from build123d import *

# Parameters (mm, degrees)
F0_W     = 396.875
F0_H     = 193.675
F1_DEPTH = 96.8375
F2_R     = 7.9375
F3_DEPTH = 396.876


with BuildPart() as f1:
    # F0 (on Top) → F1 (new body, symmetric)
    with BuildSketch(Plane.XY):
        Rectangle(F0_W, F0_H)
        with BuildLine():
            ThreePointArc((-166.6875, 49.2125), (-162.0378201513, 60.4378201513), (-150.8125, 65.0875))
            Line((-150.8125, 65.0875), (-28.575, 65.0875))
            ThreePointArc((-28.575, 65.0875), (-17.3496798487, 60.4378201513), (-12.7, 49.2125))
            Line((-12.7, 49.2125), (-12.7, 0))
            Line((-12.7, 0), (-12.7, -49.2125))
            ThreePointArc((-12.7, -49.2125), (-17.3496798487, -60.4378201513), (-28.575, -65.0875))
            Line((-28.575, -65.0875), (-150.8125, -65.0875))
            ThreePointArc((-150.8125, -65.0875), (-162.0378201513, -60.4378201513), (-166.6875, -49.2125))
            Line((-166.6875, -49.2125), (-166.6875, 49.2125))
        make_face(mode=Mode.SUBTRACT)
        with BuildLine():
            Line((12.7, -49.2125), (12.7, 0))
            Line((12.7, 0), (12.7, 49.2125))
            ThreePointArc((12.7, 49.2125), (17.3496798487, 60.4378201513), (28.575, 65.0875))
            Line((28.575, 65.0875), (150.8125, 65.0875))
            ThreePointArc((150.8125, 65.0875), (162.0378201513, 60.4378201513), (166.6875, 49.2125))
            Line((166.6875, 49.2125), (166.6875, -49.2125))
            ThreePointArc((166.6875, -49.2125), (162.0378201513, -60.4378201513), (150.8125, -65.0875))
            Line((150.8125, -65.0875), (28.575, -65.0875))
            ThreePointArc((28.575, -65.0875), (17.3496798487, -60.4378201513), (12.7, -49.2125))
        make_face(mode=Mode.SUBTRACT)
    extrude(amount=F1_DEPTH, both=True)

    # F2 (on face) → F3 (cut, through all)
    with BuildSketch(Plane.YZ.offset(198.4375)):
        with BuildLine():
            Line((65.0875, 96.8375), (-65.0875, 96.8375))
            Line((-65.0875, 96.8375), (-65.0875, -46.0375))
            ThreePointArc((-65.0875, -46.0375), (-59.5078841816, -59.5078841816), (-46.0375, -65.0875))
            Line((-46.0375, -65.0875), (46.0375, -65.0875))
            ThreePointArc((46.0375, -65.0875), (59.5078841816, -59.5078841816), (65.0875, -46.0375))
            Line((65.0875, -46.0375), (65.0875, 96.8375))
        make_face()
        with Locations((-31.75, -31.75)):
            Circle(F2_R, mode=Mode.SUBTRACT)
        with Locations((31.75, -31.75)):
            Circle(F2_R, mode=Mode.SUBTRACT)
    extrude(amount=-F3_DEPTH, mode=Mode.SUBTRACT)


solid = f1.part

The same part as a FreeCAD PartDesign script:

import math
import FreeCAD as App
import Part
import Sketcher

V = App.Vector
Q = App.Units.Quantity


def add_polygon(sketch, points):
    """Adds a closed chain of lines whose ends are joined by coincident constraints."""
    first, n = sketch.GeometryCount, len(points)
    for a, b in zip(points, points[1:] + points[:1]):
        sketch.addGeometry(Part.LineSegment(App.Vector(*a, 0), App.Vector(*b, 0)), False)
    for i in range(n):
        sketch.addConstraint(Sketcher.Constraint("Coincident", first + i, 2, first + (i + 1) % n, 1))

doc = App.newDocument("Part")
params = doc.addObject("Spreadsheet::Sheet", "Params")
for row, (alias, value) in enumerate([
    ("sketch1_radius", "0.625 in"),
    ("sketch1_width", "15.625 in"),
    ("sketch1_width2", "4.8125 in"),
    ("sketch1_height", "7.625 in"),
    ("pad1_length", "7.625 in"),
    ("sketch2_radius", "0.75 in"),
    ("sketch2_diameter", "0.625 in"),
    ("sketch2_width", "5.125 in"),
    ("sketch2_height", "5.625 in"),
], start=1):
    params.set(f"A{row}", alias)
    params.set(f"B{row}", "=" + value)
    params.setAlias(f"B{row}", alias)

body = doc.addObject("PartDesign::Body", "Body")
body.AllowCompound = True

sketch1 = body.newObject("Sketcher::SketchObject", "Sketch")
sketch1.AttachmentSupport = (doc.getObject("XY_Plane"), [""])
sketch1.MapMode = "FlatFace"
add_polygon(sketch1, [(-198.4375, 96.8375), (-198.4375, -96.8375), (198.4375, -96.8375), (198.4375, 96.8375)])
sketch1.addGeometry(Part.LineSegment(V(-166.6875, -49.2125, 0), V(-166.6875, 49.2125, 0)), False)
sketch1.addGeometry(Part.ArcOfCircle(Part.Circle(V(-150.8125, 49.2125, 0), V(0, 0, 1), 15.875), math.radians(90), math.radians(180)), False)
sketch1.addGeometry(Part.LineSegment(V(-150.8125, 65.0875, 0), V(-28.575, 65.0875, 0)), False)
sketch1.addGeometry(Part.ArcOfCircle(Part.Circle(V(-28.575, 49.2125, 0), V(0, 0, 1), 15.875), math.radians(0), math.radians(90)), False)
sketch1.addGeometry(Part.LineSegment(V(-12.7, 49.2125, 0), V(-12.7, -49.2125, 0)), False)
sketch1.addGeometry(Part.ArcOfCircle(Part.Circle(V(-28.575, -49.2125, 0), V(0, 0, 1), 15.875), math.radians(-90), math.radians(0)), False)
sketch1.addGeometry(Part.LineSegment(V(-28.575, -65.0875, 0), V(-150.8125, -65.0875, 0)), False)
sketch1.addGeometry(Part.ArcOfCircle(Part.Circle(V(-150.8125, -49.2125, 0), V(0, 0, 1), 15.875), math.radians(180), math.radians(270)), False)
sketch1.addGeometry(Part.ArcOfCircle(Part.Circle(V(28.575, -49.2125, 0), V(0, 0, 1), 15.875), math.radians(180), math.radians(270)), False)
sketch1.addGeometry(Part.LineSegment(V(12.7, -49.2125, 0), V(12.7, 49.2125, 0)), False)
sketch1.addGeometry(Part.ArcOfCircle(Part.Circle(V(28.575, 49.2125, 0), V(0, 0, 1), 15.875), math.radians(90), math.radians(180)), False)
sketch1.addGeometry(Part.LineSegment(V(28.575, 65.0875, 0), V(150.8125, 65.0875, 0)), False)
sketch1.addGeometry(Part.ArcOfCircle(Part.Circle(V(150.8125, 49.2125, 0), V(0, 0, 1), 15.875), math.radians(0), math.radians(90)), False)
sketch1.addGeometry(Part.LineSegment(V(166.6875, 49.2125, 0), V(166.6875, -49.2125, 0)), False)
sketch1.addGeometry(Part.ArcOfCircle(Part.Circle(V(150.8125, -49.2125, 0), V(0, 0, 1), 15.875), math.radians(-90), math.radians(0)), False)
sketch1.addGeometry(Part.LineSegment(V(150.8125, -65.0875, 0), V(28.575, -65.0875, 0)), False)
sketch1.addConstraint(Sketcher.Constraint("Tangent", 4, 2, 5, 2))
sketch1.addConstraint(Sketcher.Constraint("Tangent", 5, 1, 6, 1))
sketch1.addConstraint(Sketcher.Constraint("Tangent", 6, 2, 7, 2))
sketch1.addConstraint(Sketcher.Constraint("Tangent", 7, 1, 8, 1))
sketch1.addConstraint(Sketcher.Constraint("Tangent", 8, 2, 9, 2))
sketch1.addConstraint(Sketcher.Constraint("Tangent", 9, 1, 10, 1))
sketch1.addConstraint(Sketcher.Constraint("Tangent", 10, 2, 11, 2))
sketch1.addConstraint(Sketcher.Constraint("Tangent", 11, 1, 4, 1))
sketch1.addConstraint(Sketcher.Constraint("Tangent", 12, 1, 13, 1))
sketch1.addConstraint(Sketcher.Constraint("Tangent", 13, 2, 14, 2))
sketch1.addConstraint(Sketcher.Constraint("Tangent", 14, 1, 15, 1))
sketch1.addConstraint(Sketcher.Constraint("Tangent", 15, 2, 16, 2))
sketch1.addConstraint(Sketcher.Constraint("Tangent", 16, 1, 17, 1))
sketch1.addConstraint(Sketcher.Constraint("Tangent", 17, 2, 18, 2))
sketch1.addConstraint(Sketcher.Constraint("Tangent", 18, 1, 19, 1))
sketch1.addConstraint(Sketcher.Constraint("Tangent", 19, 2, 12, 2))
sketch1.addConstraint(Sketcher.Constraint("Vertical", 0))
sketch1.addConstraint(Sketcher.Constraint("Horizontal", 1))
sketch1.addConstraint(Sketcher.Constraint("Vertical", 2))
sketch1.addConstraint(Sketcher.Constraint("Horizontal", 3))
sketch1.addConstraint(Sketcher.Constraint("Vertical", 4))
sketch1.addConstraint(Sketcher.Constraint("Horizontal", 6))
sketch1.addConstraint(Sketcher.Constraint("Vertical", 8))
sketch1.addConstraint(Sketcher.Constraint("Horizontal", 10))
sketch1.addConstraint(Sketcher.Constraint("Vertical", 13))
sketch1.addConstraint(Sketcher.Constraint("Horizontal", 15))
sketch1.addConstraint(Sketcher.Constraint("Vertical", 17))
sketch1.addConstraint(Sketcher.Constraint("Horizontal", 19))
sketch1.addConstraint(Sketcher.Constraint("Equal", 5, 7))
sketch1.addConstraint(Sketcher.Constraint("Equal", 7, 9))
sketch1.addConstraint(Sketcher.Constraint("Equal", 9, 11))
sketch1.addConstraint(Sketcher.Constraint("Equal", 11, 12))
sketch1.addConstraint(Sketcher.Constraint("Equal", 12, 14))
sketch1.addConstraint(Sketcher.Constraint("Equal", 14, 16))
sketch1.addConstraint(Sketcher.Constraint("Equal", 16, 18))
sketch1.addConstraint(Sketcher.Constraint("Symmetric", 7, 3, 12, 3, -1, 1))
sketch1.addConstraint(Sketcher.Constraint("Symmetric", 11, 3, 16, 3, -1, 1))
sketch1.addConstraint(Sketcher.Constraint("Symmetric", 0, 2, 2, 2, -1, 1))
sketch1.addConstraint(Sketcher.Constraint("Horizontal", 11, 3, 12, 3))
sketch1.addConstraint(Sketcher.Constraint("Radius", 5, Q("0.625 in")))
sketch1.addConstraint(Sketcher.Constraint("DistanceX", 8, 2, 12, 1, Q("1 in")))
sketch1.addConstraint(Sketcher.Constraint("DistanceY", 11, 3, 5, 1, Q("4.5 in")))
sketch1.addConstraint(Sketcher.Constraint("DistanceX", 1, 1, 1, 2, Q("15.625 in")))
sketch1.addConstraint(Sketcher.Constraint("DistanceX", 6, 1, 6, 2, Q("4.8125 in")))
sketch1.addConstraint(Sketcher.Constraint("DistanceY", 0, 2, 0, 1, Q("7.625 in")))
sketch1.setExpression("Constraints[43]", "Params.sketch1_radius")
sketch1.setExpression("Constraints[46]", "Params.sketch1_width")
sketch1.setExpression("Constraints[47]", "Params.sketch1_width2")
sketch1.setExpression("Constraints[48]", "Params.sketch1_height")
pad1 = body.newObject("PartDesign::Pad", "Pad")
pad1.Profile = sketch1
pad1.setExpression("Length", "Params.pad1_length")
pad1.Midplane = True

sketch2 = body.newObject("Sketcher::SketchObject", "Sketch001")
sketch2.AttachmentSupport = (doc.getObject("YZ_Plane"), [""])
sketch2.MapMode = "FlatFace"
sketch2.AttachmentOffset = App.Placement(V(0, 0, 7.8125 * 25.4), App.Rotation())
sketch2.addGeometry(Part.LineSegment(V(65.0875, 96.8375, 0), V(-65.0875, 96.8375, 0)), False)
sketch2.addGeometry(Part.LineSegment(V(-65.0875, 96.8375, 0), V(-65.0875, -46.0375, 0)), False)
sketch2.addGeometry(Part.ArcOfCircle(Part.Circle(V(-46.0375, -46.0375, 0), V(0, 0, 1), 19.05), math.radians(180), math.radians(270)), False)
sketch2.addGeometry(Part.LineSegment(V(-46.0375, -65.0875, 0), V(46.0375, -65.0875, 0)), False)
sketch2.addGeometry(Part.ArcOfCircle(Part.Circle(V(46.0375, -46.0375, 0), V(0, 0, 1), 19.05), math.radians(-90), math.radians(0)), False)
sketch2.addGeometry(Part.LineSegment(V(65.0875, -46.0375, 0), V(65.0875, 96.8375, 0)), False)
sketch2.addGeometry(Part.Circle(V(-31.75, -31.75, 0), V(0, 0, 1), 7.9375), False)
sketch2.addGeometry(Part.Circle(V(31.75, -31.75, 0), V(0, 0, 1), 7.9375), False)
sketch2.addConstraint(Sketcher.Constraint("Coincident", 0, 2, 1, 1))
sketch2.addConstraint(Sketcher.Constraint("Tangent", 1, 2, 2, 1))
sketch2.addConstraint(Sketcher.Constraint("Tangent", 2, 2, 3, 1))
sketch2.addConstraint(Sketcher.Constraint("Tangent", 3, 2, 4, 1))
sketch2.addConstraint(Sketcher.Constraint("Tangent", 4, 2, 5, 1))
sketch2.addConstraint(Sketcher.Constraint("Coincident", 5, 2, 0, 1))
sketch2.addConstraint(Sketcher.Constraint("Horizontal", 0))
sketch2.addConstraint(Sketcher.Constraint("Vertical", 1))
sketch2.addConstraint(Sketcher.Constraint("Horizontal", 3))
sketch2.addConstraint(Sketcher.Constraint("Vertical", 5))
sketch2.addConstraint(Sketcher.Constraint("Equal", 2, 4))
sketch2.addConstraint(Sketcher.Constraint("Equal", 6, 7))
sketch2.addConstraint(Sketcher.Constraint("Symmetric", 6, 3, 7, 3, -2))
sketch2.addConstraint(Sketcher.Constraint("Radius", 2, Q("0.75 in")))
sketch2.addConstraint(Sketcher.Constraint("Diameter", 6, Q("0.625 in")))
sketch2.addConstraint(Sketcher.Constraint("DistanceX", 6, 3, 7, 3, Q("2.5 in")))
sketch2.addConstraint(Sketcher.Constraint("DistanceX", 0, 2, 0, 1, Q("5.125 in")))
sketch2.addConstraint(Sketcher.Constraint("DistanceY", 1, 2, 1, 1, Q("5.625 in")))
sketch2.addConstraint(Sketcher.Constraint("DistanceY", 6, 3, -1, 1, Q("1.25 in")))
sketch2.addConstraint(Sketcher.Constraint("DistanceX", 2, 3, -1, 1, Q("1.8125 in")))
sketch2.addConstraint(Sketcher.Constraint("DistanceY", 2, 3, -1, 1, Q("1.8125 in")))
sketch2.setExpression("Constraints[13]", "Params.sketch2_radius")
sketch2.setExpression("Constraints[14]", "Params.sketch2_diameter")
sketch2.setExpression("Constraints[16]", "Params.sketch2_width")
sketch2.setExpression("Constraints[17]", "Params.sketch2_height")
pocket1 = body.newObject("PartDesign::Pocket", "Pocket")
pocket1.Profile = sketch2
pocket1.Type = "ThroughAll"

doc.recompute()
